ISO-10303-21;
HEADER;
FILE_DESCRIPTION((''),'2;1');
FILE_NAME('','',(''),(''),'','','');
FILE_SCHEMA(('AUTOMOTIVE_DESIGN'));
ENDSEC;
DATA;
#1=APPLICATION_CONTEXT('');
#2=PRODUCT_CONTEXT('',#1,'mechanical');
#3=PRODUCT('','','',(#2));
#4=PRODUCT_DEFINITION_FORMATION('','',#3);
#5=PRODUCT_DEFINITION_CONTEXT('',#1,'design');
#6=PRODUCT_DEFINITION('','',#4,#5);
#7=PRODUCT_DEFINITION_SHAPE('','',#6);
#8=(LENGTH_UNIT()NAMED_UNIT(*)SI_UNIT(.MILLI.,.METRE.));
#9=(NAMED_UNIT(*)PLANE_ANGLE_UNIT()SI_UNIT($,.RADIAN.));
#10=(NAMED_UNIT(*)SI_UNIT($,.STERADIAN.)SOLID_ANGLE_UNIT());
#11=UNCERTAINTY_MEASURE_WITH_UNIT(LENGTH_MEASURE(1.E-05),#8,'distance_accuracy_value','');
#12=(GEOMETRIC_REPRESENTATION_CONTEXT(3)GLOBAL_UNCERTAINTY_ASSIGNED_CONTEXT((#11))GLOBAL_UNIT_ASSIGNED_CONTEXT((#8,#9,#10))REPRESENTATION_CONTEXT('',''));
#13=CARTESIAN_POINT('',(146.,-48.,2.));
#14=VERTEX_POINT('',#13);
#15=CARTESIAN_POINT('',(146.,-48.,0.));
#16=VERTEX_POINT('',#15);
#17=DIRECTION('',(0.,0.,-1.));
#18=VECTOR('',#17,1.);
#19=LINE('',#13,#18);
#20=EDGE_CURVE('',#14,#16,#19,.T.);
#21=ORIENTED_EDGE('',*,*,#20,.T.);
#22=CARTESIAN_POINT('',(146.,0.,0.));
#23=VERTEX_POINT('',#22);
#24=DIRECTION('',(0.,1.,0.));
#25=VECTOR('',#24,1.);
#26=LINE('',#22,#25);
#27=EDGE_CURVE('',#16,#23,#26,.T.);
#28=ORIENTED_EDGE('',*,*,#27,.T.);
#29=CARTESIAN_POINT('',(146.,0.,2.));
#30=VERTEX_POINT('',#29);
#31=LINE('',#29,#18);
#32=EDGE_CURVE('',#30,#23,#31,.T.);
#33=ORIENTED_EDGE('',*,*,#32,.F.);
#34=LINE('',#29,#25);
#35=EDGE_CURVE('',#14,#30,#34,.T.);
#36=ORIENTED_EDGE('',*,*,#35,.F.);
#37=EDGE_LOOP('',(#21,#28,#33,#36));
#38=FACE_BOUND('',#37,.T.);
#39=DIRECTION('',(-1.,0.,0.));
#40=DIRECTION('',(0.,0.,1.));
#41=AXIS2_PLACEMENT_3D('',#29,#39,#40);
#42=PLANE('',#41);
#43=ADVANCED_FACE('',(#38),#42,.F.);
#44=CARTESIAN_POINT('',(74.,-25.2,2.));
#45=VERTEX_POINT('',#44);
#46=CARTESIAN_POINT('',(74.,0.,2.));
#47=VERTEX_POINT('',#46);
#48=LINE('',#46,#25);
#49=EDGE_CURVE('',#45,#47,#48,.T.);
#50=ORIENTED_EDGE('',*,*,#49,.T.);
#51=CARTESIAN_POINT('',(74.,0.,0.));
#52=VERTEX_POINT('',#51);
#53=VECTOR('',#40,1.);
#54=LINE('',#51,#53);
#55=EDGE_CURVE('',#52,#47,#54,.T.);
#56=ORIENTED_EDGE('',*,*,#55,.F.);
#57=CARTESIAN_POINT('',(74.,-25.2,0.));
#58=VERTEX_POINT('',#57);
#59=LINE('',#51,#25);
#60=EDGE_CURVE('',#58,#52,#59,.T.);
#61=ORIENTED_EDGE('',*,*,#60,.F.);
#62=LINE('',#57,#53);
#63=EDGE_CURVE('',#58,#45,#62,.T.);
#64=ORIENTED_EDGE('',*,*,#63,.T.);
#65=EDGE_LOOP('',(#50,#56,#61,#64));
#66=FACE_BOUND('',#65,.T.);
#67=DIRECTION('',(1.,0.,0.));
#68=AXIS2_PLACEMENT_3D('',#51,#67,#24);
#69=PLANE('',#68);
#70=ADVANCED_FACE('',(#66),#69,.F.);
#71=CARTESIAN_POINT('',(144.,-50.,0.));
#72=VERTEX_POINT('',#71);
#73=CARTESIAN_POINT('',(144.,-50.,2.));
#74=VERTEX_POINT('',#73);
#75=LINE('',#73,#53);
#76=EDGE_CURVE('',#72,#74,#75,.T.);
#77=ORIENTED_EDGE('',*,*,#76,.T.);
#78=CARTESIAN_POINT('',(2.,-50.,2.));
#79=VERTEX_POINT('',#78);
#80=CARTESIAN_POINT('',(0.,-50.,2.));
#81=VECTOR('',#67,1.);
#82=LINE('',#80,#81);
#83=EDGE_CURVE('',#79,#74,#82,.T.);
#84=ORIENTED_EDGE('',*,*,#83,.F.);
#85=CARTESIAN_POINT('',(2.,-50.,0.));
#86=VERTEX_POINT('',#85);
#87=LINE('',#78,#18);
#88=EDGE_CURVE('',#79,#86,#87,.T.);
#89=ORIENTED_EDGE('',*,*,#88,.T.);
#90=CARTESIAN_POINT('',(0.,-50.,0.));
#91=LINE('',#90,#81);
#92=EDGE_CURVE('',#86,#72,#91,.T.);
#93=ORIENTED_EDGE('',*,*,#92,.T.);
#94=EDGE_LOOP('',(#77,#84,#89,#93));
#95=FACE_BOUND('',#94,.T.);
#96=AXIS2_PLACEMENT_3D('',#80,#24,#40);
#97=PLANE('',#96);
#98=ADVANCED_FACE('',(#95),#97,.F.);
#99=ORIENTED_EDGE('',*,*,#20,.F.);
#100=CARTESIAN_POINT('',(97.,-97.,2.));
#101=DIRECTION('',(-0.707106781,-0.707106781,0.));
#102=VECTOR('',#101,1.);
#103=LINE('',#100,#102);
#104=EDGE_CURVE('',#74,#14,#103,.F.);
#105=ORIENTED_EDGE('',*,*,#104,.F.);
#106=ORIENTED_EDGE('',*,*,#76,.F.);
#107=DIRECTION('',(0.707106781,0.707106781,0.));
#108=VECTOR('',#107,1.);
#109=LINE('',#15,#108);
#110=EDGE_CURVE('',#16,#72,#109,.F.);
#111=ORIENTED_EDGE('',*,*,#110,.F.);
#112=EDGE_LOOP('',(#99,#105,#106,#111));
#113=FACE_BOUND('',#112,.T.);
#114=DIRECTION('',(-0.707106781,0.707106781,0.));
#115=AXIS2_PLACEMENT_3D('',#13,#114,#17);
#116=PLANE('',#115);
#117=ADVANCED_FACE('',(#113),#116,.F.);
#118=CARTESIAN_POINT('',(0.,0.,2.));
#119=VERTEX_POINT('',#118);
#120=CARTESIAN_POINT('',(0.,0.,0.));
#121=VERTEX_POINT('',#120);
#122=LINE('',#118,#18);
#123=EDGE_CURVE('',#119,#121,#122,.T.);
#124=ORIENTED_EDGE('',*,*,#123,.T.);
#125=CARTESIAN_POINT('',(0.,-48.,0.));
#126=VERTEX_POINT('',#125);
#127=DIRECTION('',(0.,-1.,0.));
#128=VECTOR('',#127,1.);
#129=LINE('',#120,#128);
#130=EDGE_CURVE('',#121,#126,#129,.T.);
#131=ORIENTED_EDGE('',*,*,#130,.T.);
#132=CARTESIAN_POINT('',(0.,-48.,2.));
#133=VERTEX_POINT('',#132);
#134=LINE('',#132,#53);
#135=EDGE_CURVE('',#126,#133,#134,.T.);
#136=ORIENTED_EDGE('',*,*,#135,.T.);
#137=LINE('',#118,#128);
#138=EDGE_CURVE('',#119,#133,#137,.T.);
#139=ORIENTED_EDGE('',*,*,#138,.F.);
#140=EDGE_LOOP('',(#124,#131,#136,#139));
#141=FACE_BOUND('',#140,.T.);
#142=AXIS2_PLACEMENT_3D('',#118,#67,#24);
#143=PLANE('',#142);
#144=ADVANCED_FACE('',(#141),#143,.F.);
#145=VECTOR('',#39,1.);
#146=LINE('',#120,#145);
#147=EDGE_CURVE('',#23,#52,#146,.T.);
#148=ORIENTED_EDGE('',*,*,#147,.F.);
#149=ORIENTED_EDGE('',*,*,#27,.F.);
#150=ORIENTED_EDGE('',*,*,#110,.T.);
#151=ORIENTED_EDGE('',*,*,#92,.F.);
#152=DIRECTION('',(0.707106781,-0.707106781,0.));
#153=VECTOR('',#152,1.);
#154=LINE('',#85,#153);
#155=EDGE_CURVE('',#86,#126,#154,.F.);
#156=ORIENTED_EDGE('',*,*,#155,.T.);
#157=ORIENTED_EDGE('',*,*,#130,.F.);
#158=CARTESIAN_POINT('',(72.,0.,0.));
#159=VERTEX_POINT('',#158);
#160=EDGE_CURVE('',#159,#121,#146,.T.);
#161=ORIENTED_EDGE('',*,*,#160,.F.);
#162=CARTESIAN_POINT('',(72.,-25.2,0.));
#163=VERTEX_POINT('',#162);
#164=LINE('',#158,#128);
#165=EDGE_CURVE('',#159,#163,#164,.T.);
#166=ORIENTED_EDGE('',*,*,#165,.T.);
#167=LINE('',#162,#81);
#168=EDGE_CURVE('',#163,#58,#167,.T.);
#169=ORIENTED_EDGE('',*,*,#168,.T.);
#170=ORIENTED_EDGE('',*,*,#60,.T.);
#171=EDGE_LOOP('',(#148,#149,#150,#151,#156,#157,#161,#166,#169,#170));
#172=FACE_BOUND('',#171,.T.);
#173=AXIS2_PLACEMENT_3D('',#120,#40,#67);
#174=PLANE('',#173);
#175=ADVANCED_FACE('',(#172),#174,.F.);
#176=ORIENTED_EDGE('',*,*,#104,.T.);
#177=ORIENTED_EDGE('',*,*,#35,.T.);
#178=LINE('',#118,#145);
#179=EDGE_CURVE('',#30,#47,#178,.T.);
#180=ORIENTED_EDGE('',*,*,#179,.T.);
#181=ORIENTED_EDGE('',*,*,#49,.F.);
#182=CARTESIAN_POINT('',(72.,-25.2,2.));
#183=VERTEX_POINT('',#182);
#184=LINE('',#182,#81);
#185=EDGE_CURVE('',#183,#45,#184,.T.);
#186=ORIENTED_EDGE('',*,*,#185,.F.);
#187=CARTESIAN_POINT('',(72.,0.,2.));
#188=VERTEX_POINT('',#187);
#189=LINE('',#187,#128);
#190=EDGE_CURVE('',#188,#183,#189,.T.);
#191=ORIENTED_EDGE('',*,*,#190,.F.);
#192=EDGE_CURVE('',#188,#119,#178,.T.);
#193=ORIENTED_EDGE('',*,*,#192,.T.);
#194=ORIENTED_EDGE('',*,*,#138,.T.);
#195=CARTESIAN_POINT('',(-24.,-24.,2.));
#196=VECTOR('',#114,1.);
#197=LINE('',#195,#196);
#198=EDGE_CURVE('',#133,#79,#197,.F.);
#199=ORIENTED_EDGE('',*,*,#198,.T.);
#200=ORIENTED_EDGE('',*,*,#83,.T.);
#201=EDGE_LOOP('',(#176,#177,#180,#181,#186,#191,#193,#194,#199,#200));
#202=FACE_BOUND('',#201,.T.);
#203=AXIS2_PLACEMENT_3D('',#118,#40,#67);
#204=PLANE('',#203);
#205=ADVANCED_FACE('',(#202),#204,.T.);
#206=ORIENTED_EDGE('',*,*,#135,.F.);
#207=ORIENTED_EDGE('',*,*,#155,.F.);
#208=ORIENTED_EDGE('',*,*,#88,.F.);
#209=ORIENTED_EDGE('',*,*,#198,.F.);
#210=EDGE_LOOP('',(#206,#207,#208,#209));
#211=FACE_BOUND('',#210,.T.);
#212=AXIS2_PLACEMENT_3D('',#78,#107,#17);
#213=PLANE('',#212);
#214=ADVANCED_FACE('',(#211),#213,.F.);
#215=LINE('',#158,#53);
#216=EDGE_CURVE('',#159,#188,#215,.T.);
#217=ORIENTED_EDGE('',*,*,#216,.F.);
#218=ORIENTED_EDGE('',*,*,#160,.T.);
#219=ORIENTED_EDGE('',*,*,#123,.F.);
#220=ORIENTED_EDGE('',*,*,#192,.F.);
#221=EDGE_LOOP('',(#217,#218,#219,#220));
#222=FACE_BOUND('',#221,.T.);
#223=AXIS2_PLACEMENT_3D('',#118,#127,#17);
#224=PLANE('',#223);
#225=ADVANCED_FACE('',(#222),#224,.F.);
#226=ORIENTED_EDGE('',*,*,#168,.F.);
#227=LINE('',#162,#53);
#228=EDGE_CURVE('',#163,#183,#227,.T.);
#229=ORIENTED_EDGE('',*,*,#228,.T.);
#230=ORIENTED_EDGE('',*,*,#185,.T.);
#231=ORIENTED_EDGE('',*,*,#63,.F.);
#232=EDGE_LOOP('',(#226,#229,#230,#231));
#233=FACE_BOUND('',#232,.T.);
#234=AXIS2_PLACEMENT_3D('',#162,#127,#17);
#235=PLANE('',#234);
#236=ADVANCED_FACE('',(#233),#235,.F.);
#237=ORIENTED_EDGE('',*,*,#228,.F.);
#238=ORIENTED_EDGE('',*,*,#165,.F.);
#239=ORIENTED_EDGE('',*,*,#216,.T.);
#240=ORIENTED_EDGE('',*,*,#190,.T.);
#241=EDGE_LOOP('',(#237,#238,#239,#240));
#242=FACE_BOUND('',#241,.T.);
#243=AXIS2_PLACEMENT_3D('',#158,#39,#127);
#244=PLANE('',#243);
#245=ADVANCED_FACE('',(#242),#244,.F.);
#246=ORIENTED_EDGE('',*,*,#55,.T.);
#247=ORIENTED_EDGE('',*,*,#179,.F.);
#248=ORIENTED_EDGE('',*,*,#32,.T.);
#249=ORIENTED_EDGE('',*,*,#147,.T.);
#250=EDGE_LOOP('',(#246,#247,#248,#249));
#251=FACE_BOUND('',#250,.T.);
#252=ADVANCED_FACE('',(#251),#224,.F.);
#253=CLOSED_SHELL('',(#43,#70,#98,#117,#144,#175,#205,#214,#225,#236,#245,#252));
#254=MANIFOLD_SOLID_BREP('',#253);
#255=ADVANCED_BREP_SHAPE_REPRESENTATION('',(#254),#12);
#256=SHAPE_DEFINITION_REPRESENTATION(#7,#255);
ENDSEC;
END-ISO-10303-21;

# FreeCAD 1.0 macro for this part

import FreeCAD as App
import Part
import Sketcher
from FreeCAD import Vector


def edges_at(feature, points):
    """Names of the edges that pass closest to the given points."""
    edges = feature.Shape.Edges
    near = lambda p: min(range(len(edges)), key=lambda i: edges[i].distToShape(Part.Vertex(*p))[0])
    return sorted({f"Edge{near(p) + 1}" for p in points})


def add_polygon(sketch, points):
    """Adds a closed chain of lines whose ends are joined by coincident constraints."""
    first, n = sketch.GeometryCount, len(points)
    for a, b in zip(points, points[1:] + points[:1]):
        sketch.addGeometry(Part.LineSegment(App.Vector(*a, 0), App.Vector(*b, 0)), False)
    for i in range(n):
        sketch.addConstraint(Sketcher.Constraint("Coincident", first + i, 2, first + (i + 1) % n, 1))

doc = App.newDocument("Part")
body = doc.addObject("PartDesign::Body", "Body")

# Sketch on XY plane
sketch1 = body.newObject("Sketcher::SketchObject", "Sketch")
sketch1.AttachmentSupport = (doc.getObject("XY_Plane"), [""])
sketch1.MapMode = "FlatFace"
add_polygon(sketch1, [(0, 0), (0, -50), (146, -50), (146, 0)])  # lines 0-3
sketch1.addConstraint([
    Sketcher.Constraint("Vertical", 0),
    Sketcher.Constraint("Horizontal", 1),
    Sketcher.Constraint("Vertical", 2),
    Sketcher.Constraint("Horizontal", 3),
    Sketcher.Constraint("Coincident", 3, 2, -1, 1),
    Sketcher.Constraint("DistanceX", 1, 1, 1, 2, 146.0),
    Sketcher.Constraint("DistanceY", 0, 2, 0, 1, 50.0),
])
pad1 = body.newObject("PartDesign::Pad", "Pad")
pad1.Profile = sketch1
pad1.Length = 2
doc.recompute()

chamfer = body.newObject("PartDesign::Chamfer", "Chamfer")
chamfer.Base = (pad1, edges_at(pad1, [(146, -50, 1), (0, -50, 1)]))
chamfer.Size = 2

# Sketch on XY plane
sketch2 = body.newObject("Sketcher::SketchObject", "Sketch001")
sketch2.AttachmentSupport = (doc.getObject("XY_Plane"), [""])
sketch2.MapMode = "FlatFace"
sketch2.AttachmentOffset = App.Placement(Vector(0, 0, 2), App.Rotation())
add_polygon(sketch2, [(72, 0), (72, -25.2), (74, -25.2), (74, 0)])  # lines 0-3
sketch2.addConstraint([
    Sketcher.Constraint("Vertical", 0),
    Sketcher.Constraint("Horizontal", 1),
    Sketcher.Constraint("Vertical", 2),
    Sketcher.Constraint("Horizontal", 3),
    Sketcher.Constraint("PointOnObject", 2, 2, -1),
    Sketcher.Constraint("DistanceX", 1, 1, 1, 2, 2.0),
    Sketcher.Constraint("DistanceY", 0, 2, 0, 1, 25.2),
    Sketcher.Constraint("DistanceX", -1, 1, 0, 2, 72.0),
])
pocket1 = body.newObject("PartDesign::Pocket", "Pocket")
pocket1.Profile = sketch2
pocket1.Type = "ThroughAll"

doc.recompute()
